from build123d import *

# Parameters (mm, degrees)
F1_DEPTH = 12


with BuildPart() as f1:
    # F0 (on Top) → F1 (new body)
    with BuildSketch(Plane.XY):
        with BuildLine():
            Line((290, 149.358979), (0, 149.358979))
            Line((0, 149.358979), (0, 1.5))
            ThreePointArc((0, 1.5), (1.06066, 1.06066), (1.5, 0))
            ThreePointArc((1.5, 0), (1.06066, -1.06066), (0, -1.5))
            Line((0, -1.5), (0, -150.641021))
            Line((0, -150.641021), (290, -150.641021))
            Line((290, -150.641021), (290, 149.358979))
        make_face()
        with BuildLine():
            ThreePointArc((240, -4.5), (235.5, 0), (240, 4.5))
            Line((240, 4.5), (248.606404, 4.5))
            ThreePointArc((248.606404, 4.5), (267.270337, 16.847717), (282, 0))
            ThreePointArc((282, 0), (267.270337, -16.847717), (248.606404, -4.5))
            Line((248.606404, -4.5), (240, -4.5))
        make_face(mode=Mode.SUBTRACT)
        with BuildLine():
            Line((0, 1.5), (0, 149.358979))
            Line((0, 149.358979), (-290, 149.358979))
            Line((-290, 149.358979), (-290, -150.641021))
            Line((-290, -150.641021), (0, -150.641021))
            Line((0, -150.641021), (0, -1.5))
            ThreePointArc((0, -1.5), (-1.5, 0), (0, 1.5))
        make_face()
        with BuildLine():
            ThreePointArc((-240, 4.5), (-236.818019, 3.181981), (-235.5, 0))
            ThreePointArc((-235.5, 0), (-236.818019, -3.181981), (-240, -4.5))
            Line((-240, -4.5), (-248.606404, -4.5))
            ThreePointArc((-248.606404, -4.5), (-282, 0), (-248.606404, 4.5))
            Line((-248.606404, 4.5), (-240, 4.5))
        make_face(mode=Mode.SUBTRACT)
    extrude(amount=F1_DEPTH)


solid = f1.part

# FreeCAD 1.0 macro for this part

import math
import FreeCAD as App
import Part
import Sketcher
from FreeCAD import Vector
Q = App.Units.Quantity


def add_polygon(sketch, points):
    """Adds a closed chain of lines whose ends are joined by coincident constraints."""
    first, n = sketch.GeometryCount, len(points)
    for a, b in zip(points, points[1:] + points[:1]):
        sketch.addGeometry(Part.LineSegment(App.Vector(*a, 0), App.Vector(*b, 0)), False)
    for i in range(n):
        sketch.addConstraint(Sketcher.Constraint("Coincident", first + i, 2, first + (i + 1) % n, 1))

doc = App.newDocument("Part")
body = doc.addObject("PartDesign::Body", "Body")

sketch1 = doc.addObject("Sketcher::SketchObject", "Sketch")
body.addObject(sketch1)
sketch1.AttachmentSupport = (doc.XY_Plane, [""])
sketch1.MapMode = "FlatFace"
add_polygon(sketch1, [(290, 149.358979), (-290, 149.358979), (-290, -150.641021), (290, -150.641021)])
sketch1.addGeometry(Part.LineSegment(Vector(-248.606404, 4.5, 0), Vector(-240, 4.5, 0)), False)
sketch1.addGeometry(Part.ArcOfCircle(Part.Circle(Vector(-239.999998, 0.000002, 0), Vector(0, 0, 1), 4.499998), math.radians(-0.000021), math.radians(90.000021)), False)
sketch1.addGeometry(Part.ArcOfCircle(Part.Circle(Vector(-239.999998, -0.000002, 0), Vector(0, 0, 1), 4.499998), math.radians(-90.000021), math.radians(0.000021)), False)
sketch1.addGeometry(Part.LineSegment(Vector(-240, -4.5, 0), Vector(-248.606404, -4.5, 0)), False)
sketch1.addGeometry(Part.ArcOfCircle(Part.Circle(Vector(-265, 0, 0), Vector(0, 0, 1), 17), math.radians(15.349477), math.radians(344.650523)), False)
sketch1.addGeometry(Part.ArcOfCircle(Part.Circle(Vector(-0.000001, -0.000001, 0), Vector(0, 0, 1), 1.500001), math.radians(0.000022), math.radians(89.999978)), False)
sketch1.addGeometry(Part.ArcOfCircle(Part.Circle(Vector(-0.000001, 0.000001, 0), Vector(0, 0, 1), 1.500001), math.radians(-89.999978), math.radians(-0.000022)), False)
sketch1.addGeometry(Part.ArcOfCircle(Part.Circle(Vector(0, 0, 0), Vector(0, 0, 1), 1.5), math.radians(90), math.radians(270)), False)
sketch1.addGeometry(Part.LineSegment(Vector(248.606404, -4.5, 0), Vector(240, -4.5, 0)), False)
sketch1.addGeometry(Part.ArcOfCircle(Part.Circle(Vector(240, 0, 0), Vector(0, 0, 1), 4.5), math.radians(90), math.radians(270)), False)
sketch1.addGeometry(Part.LineSegment(Vector(240, 4.5, 0), Vector(248.606404, 4.5, 0)), False)
sketch1.addGeometry(Part.ArcOfCircle(Part.Circle(Vector(265, 0, 0), Vector(0, 0, 1), 17), math.radians(0), math.radians(164.650523)), False)
sketch1.addGeometry(Part.ArcOfCircle(Part.Circle(Vector(265, 0, 0), Vector(0, 0, 1), 17), math.radians(-164.650523), math.radians(0)), False)
sketch1.addConstraint([
    Sketcher.Constraint("Tangent", 4, 2, 5, 2),
    Sketcher.Constraint("Tangent", 5, 1, 6, 2),
    Sketcher.Constraint("Tangent", 6, 1, 7, 1),
    Sketcher.Constraint("Coincident", 7, 2, 8, 2),
    Sketcher.Constraint("Coincident", 8, 1, 4, 1),
    Sketcher.Constraint("Tangent", 9, 1, 10, 2),
    Sketcher.Constraint("Tangent", 10, 1, 11, 2),
    Sketcher.Constraint("Tangent", 11, 1, 9, 2),
    Sketcher.Constraint("Tangent", 12, 2, 13, 2),
    Sketcher.Constraint("Tangent", 13, 1, 14, 1),
    Sketcher.Constraint("Coincident", 14, 2, 15, 2),
    Sketcher.Constraint("Tangent", 15, 1, 16, 2),
    Sketcher.Constraint("Coincident", 16, 1, 12, 1),
    Sketcher.Constraint("Horizontal", 0),
    Sketcher.Constraint("Vertical", 1),
    Sketcher.Constraint("Horizontal", 2),
    Sketcher.Constraint("Vertical", 3),
    Sketcher.Constraint("Horizontal", 4),
    Sketcher.Constraint("Horizontal", 7),
    Sketcher.Constraint("Horizontal", 12),
    Sketcher.Constraint("Horizontal", 14),
    Sketcher.Constraint("Coincident", 9, 3, -1, 1),
    Sketcher.Constraint("Equal", 5, 6),
    Sketcher.Constraint("Equal", 6, 13),
    Sketcher.Constraint("Equal", 8, 15),
    Sketcher.Constraint("Equal", 15, 16),
    Sketcher.Constraint("Symmetric", 5, 3, 13, 3, -1, 1),
    Sketcher.Constraint("Symmetric", 8, 3, 15, 3, -1, 1),
    Sketcher.Constraint("Symmetric", 8, 1, 14, 2, -2),
    Sketcher.Constraint("PointOnObject", 5, 1, -1),
    Sketcher.Constraint("PointOnObject", 9, 1, -1),
    Sketcher.Constraint("PointOnObject", 10, 1, -2),
    Sketcher.Constraint("PointOnObject", 11, 1, -2),
    Sketcher.Constraint("PointOnObject", 15, 1, -1),
    Sketcher.Constraint("Radius", 8, Q("17 mm")),
    Sketcher.Constraint("Radius", 5, Q("4.499998 mm")),
    Sketcher.Constraint("Radius", 9, Q("1.500001 mm")),
    Sketcher.Constraint("DistanceX", 0, 2, 0, 1, Q("580 mm")),
    Sketcher.Constraint("DistanceY", 1, 2, 1, 1, Q("300 mm")),
    Sketcher.Constraint("DistanceX", 5, 3, -1, 1, Q("239.999998 mm")),
    Sketcher.Constraint("DistanceX", 8, 3, -1, 1, Q("265 mm")),
    Sketcher.Constraint("DistanceX", 0, 2, -1, 1, Q("290 mm")),
    Sketcher.Constraint("DistanceY", -1, 1, 0, 2, Q("149.358979 mm")),
])
pad1 = doc.addObject("PartDesign::Pad", "Pad")
body.addObject(pad1)
pad1.Profile = sketch1
pad1.Length = 12

doc.recompute()
